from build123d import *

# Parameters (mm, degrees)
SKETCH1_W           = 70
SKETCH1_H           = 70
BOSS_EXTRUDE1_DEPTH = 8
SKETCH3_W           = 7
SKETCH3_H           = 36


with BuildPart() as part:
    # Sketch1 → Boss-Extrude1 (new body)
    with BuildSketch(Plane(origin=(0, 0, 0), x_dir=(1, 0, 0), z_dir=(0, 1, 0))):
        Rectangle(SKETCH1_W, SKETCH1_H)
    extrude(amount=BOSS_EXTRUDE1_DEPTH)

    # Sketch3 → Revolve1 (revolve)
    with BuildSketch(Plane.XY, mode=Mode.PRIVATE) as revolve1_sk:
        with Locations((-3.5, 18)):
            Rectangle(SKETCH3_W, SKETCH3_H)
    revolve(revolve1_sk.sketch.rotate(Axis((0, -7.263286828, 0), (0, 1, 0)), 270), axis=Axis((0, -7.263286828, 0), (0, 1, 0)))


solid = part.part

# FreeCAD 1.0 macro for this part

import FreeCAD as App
import Part
import Sketcher


def add_polygon(sketch, points):
    """Adds a closed chain of lines whose ends are joined by coincident constraints."""
    first, n = sketch.GeometryCount, len(points)
    for a, b in zip(points, points[1:] + points[:1]):
        sketch.addGeometry(Part.LineSegment(App.Vector(*a, 0), App.Vector(*b, 0)), False)
    for i in range(n):
        sketch.addConstraint(Sketcher.Constraint("Coincident", first + i, 2, first + (i + 1) % n, 1))

doc = App.newDocument("Part")
body = doc.addObject("PartDesign::Body", "Body")

sketch1 = doc.addObject("Sketcher::SketchObject", "Sketch")
body.addObject(sketch1)
sketch1.AttachmentSupport = (doc.XZ_Plane, [""])
sketch1.MapMode = "FlatFace"
add_polygon(sketch1, [(-35, -35), (-35, 35), (35, 35), (35, -35)])
sketch1.addConstraint([
    Sketcher.Constraint("Vertical", 0),
    Sketcher.Constraint("Horizontal", 1),
    Sketcher.Constraint("Vertical", 2),
    Sketcher.Constraint("Horizontal", 3),
    Sketcher.Constraint("Symmetric", 0, 2, 2, 2, -1, 1),
    Sketcher.Constraint("Equal", 3, 0),
    Sketcher.Constraint("DistanceX", 1, 1, 1, 2, 70.0),
])
pad1 = doc.addObject("PartDesign::Pad", "Pad")
body.addObject(pad1)
pad1.Profile = sketch1
pad1.Length = 8
pad1.Reversed = True

sketch2 = doc.addObject("Sketcher::SketchObject", "Sketch001")
body.addObject(sketch2)
sketch2.AttachmentSupport = (doc.XY_Plane, [""])
sketch2.MapMode = "FlatFace"
add_polygon(sketch2, [(-7, 36), (-7, 0), (0, 0), (0, 36)])
sketch2.addConstraint([
    Sketcher.Constraint("Vertical", 0),
    Sketcher.Constraint("Horizontal", 1),
    Sketcher.Constraint("Vertical", 2),
    Sketcher.Constraint("Horizontal", 3),
    Sketcher.Constraint("Coincident", 1, 2, -1, 1),
    Sketcher.Constraint("DistanceX", 1, 1, 1, 2, 7.0),
    Sketcher.Constraint("DistanceY", 0, 2, 0, 1, 36.0),
])
revolution = doc.addObject("PartDesign::Revolution", "Revolution")
body.addObject(revolution)
revolution.Profile = sketch2
revolution.ReferenceAxis = (sketch2, ["V_Axis"])
revolution.Angle = 360

doc.recompute()
